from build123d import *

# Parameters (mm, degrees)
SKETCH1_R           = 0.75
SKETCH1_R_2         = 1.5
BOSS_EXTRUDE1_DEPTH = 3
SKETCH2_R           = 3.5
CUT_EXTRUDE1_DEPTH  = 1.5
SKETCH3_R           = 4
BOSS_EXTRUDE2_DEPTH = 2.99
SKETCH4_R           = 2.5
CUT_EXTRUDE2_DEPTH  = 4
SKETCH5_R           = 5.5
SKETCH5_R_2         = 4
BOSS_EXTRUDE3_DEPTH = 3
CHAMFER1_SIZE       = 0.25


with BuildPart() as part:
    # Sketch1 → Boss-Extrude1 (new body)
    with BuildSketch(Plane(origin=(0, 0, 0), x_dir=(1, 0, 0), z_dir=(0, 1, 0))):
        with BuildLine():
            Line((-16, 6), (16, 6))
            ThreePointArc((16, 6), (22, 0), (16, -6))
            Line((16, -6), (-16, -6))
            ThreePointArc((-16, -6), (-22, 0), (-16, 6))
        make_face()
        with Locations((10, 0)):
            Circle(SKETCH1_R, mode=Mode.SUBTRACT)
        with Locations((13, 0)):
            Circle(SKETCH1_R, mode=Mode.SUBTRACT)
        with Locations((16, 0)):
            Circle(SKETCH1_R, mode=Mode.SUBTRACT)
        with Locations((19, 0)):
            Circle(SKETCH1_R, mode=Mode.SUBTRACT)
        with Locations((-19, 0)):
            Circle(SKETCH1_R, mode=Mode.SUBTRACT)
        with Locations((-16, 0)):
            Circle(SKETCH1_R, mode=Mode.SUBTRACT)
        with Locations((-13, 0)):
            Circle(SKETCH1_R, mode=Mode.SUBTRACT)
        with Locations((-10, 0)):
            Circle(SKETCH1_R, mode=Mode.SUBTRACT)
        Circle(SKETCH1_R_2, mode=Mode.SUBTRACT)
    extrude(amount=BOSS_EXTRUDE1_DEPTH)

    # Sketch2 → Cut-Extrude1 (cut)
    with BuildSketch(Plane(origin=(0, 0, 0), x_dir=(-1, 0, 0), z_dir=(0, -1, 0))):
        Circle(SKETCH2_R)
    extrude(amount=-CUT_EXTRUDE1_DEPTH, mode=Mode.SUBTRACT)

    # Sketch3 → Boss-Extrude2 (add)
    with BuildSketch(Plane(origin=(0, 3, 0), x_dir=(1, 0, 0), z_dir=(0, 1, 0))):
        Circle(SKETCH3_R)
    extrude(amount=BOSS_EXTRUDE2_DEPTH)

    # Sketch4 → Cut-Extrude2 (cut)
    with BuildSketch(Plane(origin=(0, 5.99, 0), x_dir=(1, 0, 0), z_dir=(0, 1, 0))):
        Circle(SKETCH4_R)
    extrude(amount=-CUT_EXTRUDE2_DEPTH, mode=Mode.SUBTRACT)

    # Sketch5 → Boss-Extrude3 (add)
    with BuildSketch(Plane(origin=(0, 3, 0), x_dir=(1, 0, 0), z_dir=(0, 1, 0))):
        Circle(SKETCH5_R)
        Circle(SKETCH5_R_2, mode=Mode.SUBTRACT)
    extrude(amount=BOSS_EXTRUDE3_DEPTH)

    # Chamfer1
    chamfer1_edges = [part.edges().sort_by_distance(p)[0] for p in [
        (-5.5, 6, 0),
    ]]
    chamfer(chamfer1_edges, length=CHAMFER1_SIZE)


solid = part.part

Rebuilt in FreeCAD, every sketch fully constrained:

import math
import FreeCAD as App
import Part
import Sketcher
Q = App.Units.Quantity


def edges_at(feature, points):
    """Names of the edges that pass closest to the given points."""
    edges = feature.Shape.Edges
    near = lambda p: min(range(len(edges)), key=lambda i: edges[i].distToShape(Part.Vertex(*p))[0])
    return sorted({f"Edge{near(p) + 1}" for p in points})

doc = App.newDocument("Part")
body = doc.addObject("PartDesign::Body", "Body")

sketch1 = body.newObject("Sketcher::SketchObject", "Sketch")
sketch1.AttachmentSupport = (doc.getObject("XZ_Plane"), [""])
sketch1.MapMode = "FlatFace"
sketch1.addGeometry([
    Part.LineSegment(App.Vector(16, -6, 0), App.Vector(-16, -6, 0)),
    Part.ArcOfCircle(Part.Circle(App.Vector(-16, 0, 0), App.Vector(0, 0, 1), 6), math.radians(90), math.radians(270)),
    Part.LineSegment(App.Vector(-16, 6, 0), App.Vector(16, 6, 0)),
    Part.ArcOfCircle(Part.Circle(App.Vector(16, 0, 0), App.Vector(0, 0, 1), 6), math.radians(-90), math.radians(90)),
    Part.Circle(App.Vector(19, 0, 0), App.Vector(0, 0, 1), 0.75),
    Part.Circle(App.Vector(16, 0, 0), App.Vector(0, 0, 1), 0.75),
    Part.Circle(App.Vector(13, 0, 0), App.Vector(0, 0, 1), 0.75),
    Part.Circle(App.Vector(10, 0, 0), App.Vector(0, 0, 1), 0.75),
    Part.Circle(App.Vector(0, 0, 0), App.Vector(0, 0, 1), 1.5),
    Part.Circle(App.Vector(-10, 0, 0), App.Vector(0, 0, 1), 0.75),
    Part.Circle(App.Vector(-13, 0, 0), App.Vector(0, 0, 1), 0.75),
    Part.Circle(App.Vector(-16, 0, 0), App.Vector(0, 0, 1), 0.75),
    Part.Circle(App.Vector(-19, 0, 0), App.Vector(0, 0, 1), 0.75),
], False)
sketch1.addConstraint([
    Sketcher.Constraint("Tangent", 0, 2, 1, 2),
    Sketcher.Constraint("Tangent", 1, 1, 2, 1),
    Sketcher.Constraint("Tangent", 2, 2, 3, 2),
    Sketcher.Constraint("Tangent", 3, 1, 0, 1),
    Sketcher.Constraint("Horizontal", 0),
    Sketcher.Constraint("Horizontal", 2),
    Sketcher.Constraint("Coincident", 8, 3, -1, 1),
    Sketcher.Constraint("Coincident", 5, 3, 3, 3),
    Sketcher.Constraint("Coincident", 11, 3, 1, 3),
    Sketcher.Constraint("Equal", 4, 5),
    Sketcher.Constraint("Equal", 5, 6),
    Sketcher.Constraint("Equal", 6, 7),
    Sketcher.Constraint("Equal", 7, 9),
    Sketcher.Constraint("Equal", 9, 10),
    Sketcher.Constraint("Equal", 10, 11),
    Sketcher.Constraint("Equal", 11, 12),
    Sketcher.Constraint("Symmetric", 1, 3, 3, 3, -1, 1),
    Sketcher.Constraint("Symmetric", 7, 3, 9, 3, -1, 1),
    Sketcher.Constraint("Symmetric", 6, 3, 10, 3, -1, 1),
    Sketcher.Constraint("Symmetric", 4, 3, 12, 3, -1, 1),
    Sketcher.Constraint("PointOnObject", 4, 3, -1),
    Sketcher.Constraint("PointOnObject", 6, 3, -1),
    Sketcher.Constraint("PointOnObject", 7, 3, -1),
    Sketcher.Constraint("Diameter", 8, Q("3 mm")),
    Sketcher.Constraint("Radius", 1, Q("6 mm")),
    Sketcher.Constraint("Diameter", 4, Q("1.5 mm")),
    Sketcher.Constraint("DistanceX", 0, 2, 0, 1, Q("32 mm")),
    Sketcher.Constraint("DistanceX", -1, 1, 4, 3, Q("19 mm")),
    Sketcher.Constraint("DistanceX", -1, 1, 6, 3, Q("13 mm")),
    Sketcher.Constraint("DistanceX", -1, 1, 7, 3, Q("10 mm")),
])
pad1 = body.newObject("PartDesign::Pad", "Pad")
pad1.Profile = sketch1
pad1.Length = 3
pad1.Reversed = True

sketch2 = body.newObject("Sketcher::SketchObject", "Sketch001")
sketch2.AttachmentSupport = (doc.getObject("XZ_Plane"), [""])
sketch2.MapMode = "FlatFace"
sketch2.addGeometry(Part.Circle(App.Vector(0, 0, 0), App.Vector(0, 0, 1), 3.5), False)
sketch2.addConstraint([
    Sketcher.Constraint("Coincident", 0, 3, -1, 1),
    Sketcher.Constraint("Diameter", 0, Q("7 mm")),
])
pocket1 = body.newObject("PartDesign::Pocket", "Pocket")
pocket1.Profile = sketch2
pocket1.Length = 1.5

sketch3 = body.newObject("Sketcher::SketchObject", "Sketch002")
sketch3.AttachmentSupport = (doc.getObject("XZ_Plane"), [""])
sketch3.MapMode = "FlatFace"
sketch3.AttachmentOffset = App.Placement(App.Vector(0, 0, -3), App.Rotation())
sketch3.addGeometry(Part.Circle(App.Vector(0, 0, 0), App.Vector(0, 0, 1), 4), False)
sketch3.addConstraint([
    Sketcher.Constraint("Coincident", 0, 3, -1, 1),
    Sketcher.Constraint("Diameter", 0, Q("8 mm")),
])
pad2 = body.newObject("PartDesign::Pad", "Pad001")
pad2.Profile = sketch3
pad2.Length = 2.99
pad2.Reversed = True

sketch4 = body.newObject("Sketcher::SketchObject", "Sketch003")
sketch4.AttachmentSupport = (doc.getObject("XZ_Plane"), [""])
sketch4.MapMode = "FlatFace"
sketch4.AttachmentOffset = App.Placement(App.Vector(0, 0, -5.99), App.Rotation())
sketch4.addGeometry(Part.Circle(App.Vector(0, 0, 0), App.Vector(0, 0, 1), 2.5), False)
sketch4.addConstraint([
    Sketcher.Constraint("Coincident", 0, 3, -1, 1),
    Sketcher.Constraint("Diameter", 0, Q("5 mm")),
])
pocket2 = body.newObject("PartDesign::Pocket", "Pocket001")
pocket2.Profile = sketch4
pocket2.Length = 4
pocket2.Reversed = True

sketch5 = body.newObject("Sketcher::SketchObject", "Sketch004")
sketch5.AttachmentSupport = (doc.getObject("XZ_Plane"), [""])
sketch5.MapMode = "FlatFace"
sketch5.AttachmentOffset = App.Placement(App.Vector(0, 0, -3), App.Rotation())
sketch5.addGeometry([
    Part.Circle(App.Vector(0, 0, 0), App.Vector(0, 0, 1), 5.5),
    Part.Circle(App.Vector(0, 0, 0), App.Vector(0, 0, 1), 4),
], False)
sketch5.addConstraint([
    Sketcher.Constraint("Coincident", 0, 3, -1, 1),
    Sketcher.Constraint("Coincident", 1, 3, -1, 1),
    Sketcher.Constraint("Diameter", 0, Q("11 mm")),
    Sketcher.Constraint("Diameter", 1, Q("8 mm")),
])
pad3 = body.newObject("PartDesign::Pad", "Pad002")
pad3.Profile = sketch5
pad3.Length = 3
pad3.Reversed = True
doc.recompute()

chamfer = body.newObject("PartDesign::Chamfer", "Chamfer")
chamfer.Base = (pad3, edges_at(pad3, [(-5.5, 6, 0)]))
chamfer.Size = 0.25

doc.recompute()
